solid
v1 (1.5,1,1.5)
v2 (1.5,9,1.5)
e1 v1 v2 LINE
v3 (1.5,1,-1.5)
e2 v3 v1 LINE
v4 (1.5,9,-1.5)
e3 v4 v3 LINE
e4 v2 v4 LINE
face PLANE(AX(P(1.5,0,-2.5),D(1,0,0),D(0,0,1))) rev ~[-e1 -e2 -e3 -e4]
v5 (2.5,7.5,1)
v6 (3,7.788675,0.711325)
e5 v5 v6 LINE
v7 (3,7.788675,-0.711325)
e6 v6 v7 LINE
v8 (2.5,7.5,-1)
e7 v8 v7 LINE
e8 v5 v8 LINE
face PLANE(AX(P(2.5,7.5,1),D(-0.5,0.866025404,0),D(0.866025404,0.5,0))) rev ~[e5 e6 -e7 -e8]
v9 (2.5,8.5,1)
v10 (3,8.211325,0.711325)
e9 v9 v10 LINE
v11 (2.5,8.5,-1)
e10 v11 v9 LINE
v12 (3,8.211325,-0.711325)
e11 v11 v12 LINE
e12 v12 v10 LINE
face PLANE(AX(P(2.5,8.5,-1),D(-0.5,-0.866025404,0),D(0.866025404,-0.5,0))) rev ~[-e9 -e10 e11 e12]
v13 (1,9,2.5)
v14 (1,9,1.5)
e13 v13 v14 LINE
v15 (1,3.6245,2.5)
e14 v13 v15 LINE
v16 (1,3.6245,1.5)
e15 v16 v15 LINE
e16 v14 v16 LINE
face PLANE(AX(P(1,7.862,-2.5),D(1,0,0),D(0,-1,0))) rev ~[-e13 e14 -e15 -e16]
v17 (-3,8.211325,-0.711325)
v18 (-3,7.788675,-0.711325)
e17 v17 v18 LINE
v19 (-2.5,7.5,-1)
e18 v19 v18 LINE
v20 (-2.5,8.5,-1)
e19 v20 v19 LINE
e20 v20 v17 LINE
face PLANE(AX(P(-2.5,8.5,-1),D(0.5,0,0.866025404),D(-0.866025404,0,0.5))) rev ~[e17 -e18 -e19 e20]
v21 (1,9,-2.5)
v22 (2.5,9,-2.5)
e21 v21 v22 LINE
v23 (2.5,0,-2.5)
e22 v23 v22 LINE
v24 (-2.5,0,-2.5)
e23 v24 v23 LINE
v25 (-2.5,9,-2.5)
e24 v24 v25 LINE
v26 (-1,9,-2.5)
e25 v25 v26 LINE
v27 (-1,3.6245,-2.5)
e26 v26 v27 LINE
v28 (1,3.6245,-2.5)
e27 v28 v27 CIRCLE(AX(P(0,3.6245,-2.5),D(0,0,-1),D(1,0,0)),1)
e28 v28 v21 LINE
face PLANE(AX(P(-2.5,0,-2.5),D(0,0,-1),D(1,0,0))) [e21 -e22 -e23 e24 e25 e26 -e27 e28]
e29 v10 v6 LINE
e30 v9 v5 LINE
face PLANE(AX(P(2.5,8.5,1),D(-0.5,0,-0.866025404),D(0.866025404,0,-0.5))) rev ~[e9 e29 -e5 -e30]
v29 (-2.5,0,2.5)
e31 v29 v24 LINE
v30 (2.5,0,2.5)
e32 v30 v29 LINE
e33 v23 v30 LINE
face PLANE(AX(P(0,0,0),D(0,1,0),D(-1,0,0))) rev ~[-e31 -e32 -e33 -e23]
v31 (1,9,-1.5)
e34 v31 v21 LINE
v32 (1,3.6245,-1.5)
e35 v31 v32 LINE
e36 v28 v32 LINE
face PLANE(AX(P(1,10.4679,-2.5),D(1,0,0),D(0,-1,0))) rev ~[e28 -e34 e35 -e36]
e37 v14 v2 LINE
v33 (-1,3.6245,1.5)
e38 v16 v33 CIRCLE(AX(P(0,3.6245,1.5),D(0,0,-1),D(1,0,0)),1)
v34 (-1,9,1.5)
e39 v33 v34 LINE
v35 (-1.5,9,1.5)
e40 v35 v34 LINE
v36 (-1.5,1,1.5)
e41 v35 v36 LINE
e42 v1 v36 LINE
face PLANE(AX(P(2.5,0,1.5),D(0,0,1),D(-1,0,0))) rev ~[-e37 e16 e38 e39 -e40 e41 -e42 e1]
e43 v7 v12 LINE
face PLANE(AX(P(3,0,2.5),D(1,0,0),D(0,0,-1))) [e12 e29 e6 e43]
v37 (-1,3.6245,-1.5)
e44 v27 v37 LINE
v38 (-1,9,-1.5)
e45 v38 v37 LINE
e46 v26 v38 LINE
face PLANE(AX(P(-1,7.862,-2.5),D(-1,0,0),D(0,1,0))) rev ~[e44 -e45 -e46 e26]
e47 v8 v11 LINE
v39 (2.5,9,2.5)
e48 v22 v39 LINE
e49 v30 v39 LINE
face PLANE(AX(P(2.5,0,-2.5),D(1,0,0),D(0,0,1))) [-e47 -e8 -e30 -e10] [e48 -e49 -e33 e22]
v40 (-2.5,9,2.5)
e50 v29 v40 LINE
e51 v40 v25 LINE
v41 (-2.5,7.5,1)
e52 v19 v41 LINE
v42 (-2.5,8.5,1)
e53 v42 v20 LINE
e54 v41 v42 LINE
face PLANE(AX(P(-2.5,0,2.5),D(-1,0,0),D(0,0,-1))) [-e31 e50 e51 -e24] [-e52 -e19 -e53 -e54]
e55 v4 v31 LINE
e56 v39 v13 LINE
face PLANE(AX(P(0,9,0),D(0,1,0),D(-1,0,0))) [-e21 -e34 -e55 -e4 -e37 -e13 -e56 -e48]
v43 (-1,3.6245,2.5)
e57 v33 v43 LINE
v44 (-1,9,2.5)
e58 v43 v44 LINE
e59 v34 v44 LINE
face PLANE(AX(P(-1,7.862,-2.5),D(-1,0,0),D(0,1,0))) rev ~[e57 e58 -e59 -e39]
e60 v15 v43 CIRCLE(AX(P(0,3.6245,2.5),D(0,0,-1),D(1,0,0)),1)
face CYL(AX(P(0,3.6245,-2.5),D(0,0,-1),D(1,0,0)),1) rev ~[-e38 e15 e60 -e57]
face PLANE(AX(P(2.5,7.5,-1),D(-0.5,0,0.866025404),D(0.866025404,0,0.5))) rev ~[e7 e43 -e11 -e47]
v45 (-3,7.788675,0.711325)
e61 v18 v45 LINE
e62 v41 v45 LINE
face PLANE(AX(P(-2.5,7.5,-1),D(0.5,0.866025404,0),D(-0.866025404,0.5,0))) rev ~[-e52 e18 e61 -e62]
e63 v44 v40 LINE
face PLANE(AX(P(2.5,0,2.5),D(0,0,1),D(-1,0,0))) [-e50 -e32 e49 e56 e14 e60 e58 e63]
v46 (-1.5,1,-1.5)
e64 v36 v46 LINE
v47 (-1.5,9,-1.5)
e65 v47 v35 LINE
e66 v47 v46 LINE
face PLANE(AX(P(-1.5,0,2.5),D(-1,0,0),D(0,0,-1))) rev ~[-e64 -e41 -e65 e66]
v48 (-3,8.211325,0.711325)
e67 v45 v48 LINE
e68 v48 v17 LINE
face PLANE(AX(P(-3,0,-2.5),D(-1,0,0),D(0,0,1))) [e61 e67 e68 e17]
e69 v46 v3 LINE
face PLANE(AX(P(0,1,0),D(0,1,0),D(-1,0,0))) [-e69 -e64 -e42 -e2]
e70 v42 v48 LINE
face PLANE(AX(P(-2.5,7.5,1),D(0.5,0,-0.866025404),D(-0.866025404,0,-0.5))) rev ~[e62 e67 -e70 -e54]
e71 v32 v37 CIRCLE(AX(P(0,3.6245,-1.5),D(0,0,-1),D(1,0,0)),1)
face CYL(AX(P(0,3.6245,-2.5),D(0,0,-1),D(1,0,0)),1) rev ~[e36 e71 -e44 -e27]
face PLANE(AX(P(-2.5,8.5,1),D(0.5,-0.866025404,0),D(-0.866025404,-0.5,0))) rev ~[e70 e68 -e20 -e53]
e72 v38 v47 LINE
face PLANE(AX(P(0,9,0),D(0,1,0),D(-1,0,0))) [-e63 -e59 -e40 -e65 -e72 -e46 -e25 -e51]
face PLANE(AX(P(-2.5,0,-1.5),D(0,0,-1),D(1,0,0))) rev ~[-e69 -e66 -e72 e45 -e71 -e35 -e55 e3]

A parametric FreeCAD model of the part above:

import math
import FreeCAD as App
import Part
import Sketcher
from FreeCAD import Vector


def faces_at(feature, points):
    """Names of the faces that lie closest to the given points."""
    faces = feature.Shape.Faces
    near = lambda p: min(range(len(faces)), key=lambda i: faces[i].distToShape(Part.Vertex(*p))[0])
    return sorted({f"Face{near(p) + 1}" for p in points})


def add_polygon(sketch, points):
    """Adds a closed chain of lines whose ends are joined by coincident constraints."""
    first, n = sketch.GeometryCount, len(points)
    for a, b in zip(points, points[1:] + points[:1]):
        sketch.addGeometry(Part.LineSegment(App.Vector(*a, 0), App.Vector(*b, 0)), False)
    for i in range(n):
        sketch.addConstraint(Sketcher.Constraint("Coincident", first + i, 2, first + (i + 1) % n, 1))

doc = App.newDocument("Part")
body = doc.addObject("PartDesign::Body", "Body")

sketch1 = body.newObject("Sketcher::SketchObject", "Sketch")
sketch1.AttachmentSupport = (doc.getObject("XZ_Plane"), [""])
sketch1.MapMode = "FlatFace"
add_polygon(sketch1, [(-2, 2), (2, 2), (2, -2), (-2, -2)])
sketch1.addConstraint(Sketcher.Constraint("Horizontal", 0))
sketch1.addConstraint(Sketcher.Constraint("Vertical", 1))
sketch1.addConstraint(Sketcher.Constraint("Horizontal", 2))
sketch1.addConstraint(Sketcher.Constraint("Vertical", 3))
sketch1.addConstraint(Sketcher.Constraint("Symmetric", 0, 2, 2, 2, -1, 1))
sketch1.addConstraint(Sketcher.Constraint("Equal", 2, 1))
sketch1.addConstraint(Sketcher.Constraint("DistanceX", 0, 1, 0, 2, 5.0))
pad1 = body.newObject("PartDesign::Pad", "Pad")
pad1.Profile = sketch1
pad1.Length = 9
pad1.Reversed = True
doc.recompute()

thickness = body.newObject("PartDesign::Thickness", "Thickness")
thickness.Base = (pad1, faces_at(pad1, [(-0.833, 9, -0.833)]))
thickness.Value = 1
thickness.Reversed = True
thickness.Join = "Intersection"

sketch2 = body.newObject("Sketcher::SketchObject", "Sketch001")
sketch2.AttachmentSupport = (doc.getObject("YZ_Plane"), [""])
sketch2.MapMode = "FlatFace"
sketch2.AttachmentOffset = App.Placement(Vector(0, 0, 2.5), App.Rotation())
add_polygon(sketch2, [(8.5, 1), (7.5, 1), (7.5, -1), (8.5, -1)])
sketch2.addConstraint(Sketcher.Constraint("Horizontal", 0))
sketch2.addConstraint(Sketcher.Constraint("Vertical", 1))
sketch2.addConstraint(Sketcher.Constraint("Horizontal", 2))
sketch2.addConstraint(Sketcher.Constraint("Vertical", 3))
sketch2.addConstraint(Sketcher.Constraint("DistanceX", 0, 2, 0, 1, 1.0))
sketch2.addConstraint(Sketcher.Constraint("DistanceY", 1, 2, 1, 1, 2.0))
sketch2.addConstraint(Sketcher.Constraint("DistanceY", -1, 1, 0, 2, 1.0))
sketch2.addConstraint(Sketcher.Constraint("DistanceX", -1, 1, 0, 2, 7.5))
pad2 = body.newObject("PartDesign::Pad", "Pad001")
pad2.Profile = sketch2
pad2.Length = 0.5
pad2.TaperAngle = -30

sketch3 = body.newObject("Sketcher::SketchObject", "Sketch002")
sketch3.AttachmentSupport = (doc.getObject("YZ_Plane"), [""])
sketch3.MapMode = "FlatFace"
sketch3.AttachmentOffset = App.Placement(Vector(0, 0, -2.5), App.Rotation())
add_polygon(sketch3, [(8.5, -1), (7.5, -1), (7.5, 1), (8.5, 1)])
sketch3.addConstraint(Sketcher.Constraint("Horizontal", 0))
sketch3.addConstraint(Sketcher.Constraint("Vertical", 1))
sketch3.addConstraint(Sketcher.Constraint("Horizontal", 2))
sketch3.addConstraint(Sketcher.Constraint("Vertical", 3))
sketch3.addConstraint(Sketcher.Constraint("DistanceX", 0, 2, 0, 1, 1.0))
sketch3.addConstraint(Sketcher.Constraint("DistanceY", 1, 1, 1, 2, 2.0))
sketch3.addConstraint(Sketcher.Constraint("DistanceY", 0, 2, -1, 1, 1.0))
sketch3.addConstraint(Sketcher.Constraint("DistanceX", -1, 1, 0, 2, 7.5))
pad3 = body.newObject("PartDesign::Pad", "Pad002")
pad3.Profile = sketch3
pad3.Length = 0.5
pad3.Reversed = True
pad3.TaperAngle = -30

sketch4 = body.newObject("Sketcher::SketchObject", "Sketch003")
sketch4.AttachmentSupport = (doc.getObject("XY_Plane"), [""])
sketch4.MapMode = "FlatFace"
sketch4.AttachmentOffset = App.Placement(Vector(0, 0, -2.5), App.Rotation())
sketch4.addGeometry(Part.ArcOfCircle(Part.Circle(Vector(0, 7.9, 0), Vector(0, 0, 1), 1), math.radians(0), math.radians(180)), False)
sketch4.addGeometry(Part.LineSegment(Vector(1, 7.9, 0), Vector(1, 3.6, 0)), False)
sketch4.addGeometry(Part.ArcOfCircle(Part.Circle(Vector(0, 3.6, 0), Vector(0, 0, 1), 1), math.radians(180), math.radians(360)), False)
sketch4.addGeometry(Part.LineSegment(Vector(-1, 3.6, 0), Vector(-1, 7.9, 0)), False)
sketch4.addConstraint(Sketcher.Constraint("Tangent", 0, 1, 1, 1))
sketch4.addConstraint(Sketcher.Constraint("Tangent", 1, 2, 2, 2))
sketch4.addConstraint(Sketcher.Constraint("Tangent", 2, 1, 3, 1))
sketch4.addConstraint(Sketcher.Constraint("Tangent", 3, 2, 0, 2))
sketch4.addConstraint(Sketcher.Constraint("Vertical", 1))
sketch4.addConstraint(Sketcher.Constraint("Vertical", 3))
sketch4.addConstraint(Sketcher.Constraint("PointOnObject", 0, 3, -2))
sketch4.addConstraint(Sketcher.Constraint("Radius", 0, 1.0))
sketch4.addConstraint(Sketcher.Constraint("DistanceY", 1, 2, 1, 1, 4.2375))
sketch4.addConstraint(Sketcher.Constraint("DistanceY", -1, 1, 0, 3, 7.862))
pocket1 = body.newObject("PartDesign::Pocket", "Pocket")
pocket1.Profile = sketch4
pocket1.Type = "ThroughAll"
pocket1.Reversed = True

sketch5 = body.newObject("Sketcher::SketchObject", "Sketch004")
sketch5.AttachmentSupport = (doc.getObject("XY_Plane"), [""])
sketch5.MapMode = "FlatFace"
sketch5.AttachmentOffset = App.Placement(Vector(0, 0, -2.5), App.Rotation())
add_polygon(sketch5, [(1, 10.5), (1, 7.9), (-1, 7.9), (-1, 10.5)])
sketch5.addConstraint(Sketcher.Constraint("Vertical", 0))
sketch5.addConstraint(Sketcher.Constraint("Horizontal", 1))
sketch5.addConstraint(Sketcher.Constraint("Vertical", 2))
sketch5.addConstraint(Sketcher.Constraint("Horizontal", 3))
sketch5.addConstraint(Sketcher.Constraint("DistanceX", 1, 2, 1, 1, 2.0))
sketch5.addConstraint(Sketcher.Constraint("DistanceX", -1, 1, 0, 2, 1.0))
sketch5.addConstraint(Sketcher.Constraint("DistanceY", 0, 2, 0, 1, 2.606))
sketch5.addConstraint(Sketcher.Constraint("DistanceY", -1, 1, 0, 2, 7.862))
pocket2 = body.newObject("PartDesign::Pocket", "Pocket001")
pocket2.Profile = sketch5
pocket2.Type = "ThroughAll"
pocket2.Reversed = True

doc.recompute()
